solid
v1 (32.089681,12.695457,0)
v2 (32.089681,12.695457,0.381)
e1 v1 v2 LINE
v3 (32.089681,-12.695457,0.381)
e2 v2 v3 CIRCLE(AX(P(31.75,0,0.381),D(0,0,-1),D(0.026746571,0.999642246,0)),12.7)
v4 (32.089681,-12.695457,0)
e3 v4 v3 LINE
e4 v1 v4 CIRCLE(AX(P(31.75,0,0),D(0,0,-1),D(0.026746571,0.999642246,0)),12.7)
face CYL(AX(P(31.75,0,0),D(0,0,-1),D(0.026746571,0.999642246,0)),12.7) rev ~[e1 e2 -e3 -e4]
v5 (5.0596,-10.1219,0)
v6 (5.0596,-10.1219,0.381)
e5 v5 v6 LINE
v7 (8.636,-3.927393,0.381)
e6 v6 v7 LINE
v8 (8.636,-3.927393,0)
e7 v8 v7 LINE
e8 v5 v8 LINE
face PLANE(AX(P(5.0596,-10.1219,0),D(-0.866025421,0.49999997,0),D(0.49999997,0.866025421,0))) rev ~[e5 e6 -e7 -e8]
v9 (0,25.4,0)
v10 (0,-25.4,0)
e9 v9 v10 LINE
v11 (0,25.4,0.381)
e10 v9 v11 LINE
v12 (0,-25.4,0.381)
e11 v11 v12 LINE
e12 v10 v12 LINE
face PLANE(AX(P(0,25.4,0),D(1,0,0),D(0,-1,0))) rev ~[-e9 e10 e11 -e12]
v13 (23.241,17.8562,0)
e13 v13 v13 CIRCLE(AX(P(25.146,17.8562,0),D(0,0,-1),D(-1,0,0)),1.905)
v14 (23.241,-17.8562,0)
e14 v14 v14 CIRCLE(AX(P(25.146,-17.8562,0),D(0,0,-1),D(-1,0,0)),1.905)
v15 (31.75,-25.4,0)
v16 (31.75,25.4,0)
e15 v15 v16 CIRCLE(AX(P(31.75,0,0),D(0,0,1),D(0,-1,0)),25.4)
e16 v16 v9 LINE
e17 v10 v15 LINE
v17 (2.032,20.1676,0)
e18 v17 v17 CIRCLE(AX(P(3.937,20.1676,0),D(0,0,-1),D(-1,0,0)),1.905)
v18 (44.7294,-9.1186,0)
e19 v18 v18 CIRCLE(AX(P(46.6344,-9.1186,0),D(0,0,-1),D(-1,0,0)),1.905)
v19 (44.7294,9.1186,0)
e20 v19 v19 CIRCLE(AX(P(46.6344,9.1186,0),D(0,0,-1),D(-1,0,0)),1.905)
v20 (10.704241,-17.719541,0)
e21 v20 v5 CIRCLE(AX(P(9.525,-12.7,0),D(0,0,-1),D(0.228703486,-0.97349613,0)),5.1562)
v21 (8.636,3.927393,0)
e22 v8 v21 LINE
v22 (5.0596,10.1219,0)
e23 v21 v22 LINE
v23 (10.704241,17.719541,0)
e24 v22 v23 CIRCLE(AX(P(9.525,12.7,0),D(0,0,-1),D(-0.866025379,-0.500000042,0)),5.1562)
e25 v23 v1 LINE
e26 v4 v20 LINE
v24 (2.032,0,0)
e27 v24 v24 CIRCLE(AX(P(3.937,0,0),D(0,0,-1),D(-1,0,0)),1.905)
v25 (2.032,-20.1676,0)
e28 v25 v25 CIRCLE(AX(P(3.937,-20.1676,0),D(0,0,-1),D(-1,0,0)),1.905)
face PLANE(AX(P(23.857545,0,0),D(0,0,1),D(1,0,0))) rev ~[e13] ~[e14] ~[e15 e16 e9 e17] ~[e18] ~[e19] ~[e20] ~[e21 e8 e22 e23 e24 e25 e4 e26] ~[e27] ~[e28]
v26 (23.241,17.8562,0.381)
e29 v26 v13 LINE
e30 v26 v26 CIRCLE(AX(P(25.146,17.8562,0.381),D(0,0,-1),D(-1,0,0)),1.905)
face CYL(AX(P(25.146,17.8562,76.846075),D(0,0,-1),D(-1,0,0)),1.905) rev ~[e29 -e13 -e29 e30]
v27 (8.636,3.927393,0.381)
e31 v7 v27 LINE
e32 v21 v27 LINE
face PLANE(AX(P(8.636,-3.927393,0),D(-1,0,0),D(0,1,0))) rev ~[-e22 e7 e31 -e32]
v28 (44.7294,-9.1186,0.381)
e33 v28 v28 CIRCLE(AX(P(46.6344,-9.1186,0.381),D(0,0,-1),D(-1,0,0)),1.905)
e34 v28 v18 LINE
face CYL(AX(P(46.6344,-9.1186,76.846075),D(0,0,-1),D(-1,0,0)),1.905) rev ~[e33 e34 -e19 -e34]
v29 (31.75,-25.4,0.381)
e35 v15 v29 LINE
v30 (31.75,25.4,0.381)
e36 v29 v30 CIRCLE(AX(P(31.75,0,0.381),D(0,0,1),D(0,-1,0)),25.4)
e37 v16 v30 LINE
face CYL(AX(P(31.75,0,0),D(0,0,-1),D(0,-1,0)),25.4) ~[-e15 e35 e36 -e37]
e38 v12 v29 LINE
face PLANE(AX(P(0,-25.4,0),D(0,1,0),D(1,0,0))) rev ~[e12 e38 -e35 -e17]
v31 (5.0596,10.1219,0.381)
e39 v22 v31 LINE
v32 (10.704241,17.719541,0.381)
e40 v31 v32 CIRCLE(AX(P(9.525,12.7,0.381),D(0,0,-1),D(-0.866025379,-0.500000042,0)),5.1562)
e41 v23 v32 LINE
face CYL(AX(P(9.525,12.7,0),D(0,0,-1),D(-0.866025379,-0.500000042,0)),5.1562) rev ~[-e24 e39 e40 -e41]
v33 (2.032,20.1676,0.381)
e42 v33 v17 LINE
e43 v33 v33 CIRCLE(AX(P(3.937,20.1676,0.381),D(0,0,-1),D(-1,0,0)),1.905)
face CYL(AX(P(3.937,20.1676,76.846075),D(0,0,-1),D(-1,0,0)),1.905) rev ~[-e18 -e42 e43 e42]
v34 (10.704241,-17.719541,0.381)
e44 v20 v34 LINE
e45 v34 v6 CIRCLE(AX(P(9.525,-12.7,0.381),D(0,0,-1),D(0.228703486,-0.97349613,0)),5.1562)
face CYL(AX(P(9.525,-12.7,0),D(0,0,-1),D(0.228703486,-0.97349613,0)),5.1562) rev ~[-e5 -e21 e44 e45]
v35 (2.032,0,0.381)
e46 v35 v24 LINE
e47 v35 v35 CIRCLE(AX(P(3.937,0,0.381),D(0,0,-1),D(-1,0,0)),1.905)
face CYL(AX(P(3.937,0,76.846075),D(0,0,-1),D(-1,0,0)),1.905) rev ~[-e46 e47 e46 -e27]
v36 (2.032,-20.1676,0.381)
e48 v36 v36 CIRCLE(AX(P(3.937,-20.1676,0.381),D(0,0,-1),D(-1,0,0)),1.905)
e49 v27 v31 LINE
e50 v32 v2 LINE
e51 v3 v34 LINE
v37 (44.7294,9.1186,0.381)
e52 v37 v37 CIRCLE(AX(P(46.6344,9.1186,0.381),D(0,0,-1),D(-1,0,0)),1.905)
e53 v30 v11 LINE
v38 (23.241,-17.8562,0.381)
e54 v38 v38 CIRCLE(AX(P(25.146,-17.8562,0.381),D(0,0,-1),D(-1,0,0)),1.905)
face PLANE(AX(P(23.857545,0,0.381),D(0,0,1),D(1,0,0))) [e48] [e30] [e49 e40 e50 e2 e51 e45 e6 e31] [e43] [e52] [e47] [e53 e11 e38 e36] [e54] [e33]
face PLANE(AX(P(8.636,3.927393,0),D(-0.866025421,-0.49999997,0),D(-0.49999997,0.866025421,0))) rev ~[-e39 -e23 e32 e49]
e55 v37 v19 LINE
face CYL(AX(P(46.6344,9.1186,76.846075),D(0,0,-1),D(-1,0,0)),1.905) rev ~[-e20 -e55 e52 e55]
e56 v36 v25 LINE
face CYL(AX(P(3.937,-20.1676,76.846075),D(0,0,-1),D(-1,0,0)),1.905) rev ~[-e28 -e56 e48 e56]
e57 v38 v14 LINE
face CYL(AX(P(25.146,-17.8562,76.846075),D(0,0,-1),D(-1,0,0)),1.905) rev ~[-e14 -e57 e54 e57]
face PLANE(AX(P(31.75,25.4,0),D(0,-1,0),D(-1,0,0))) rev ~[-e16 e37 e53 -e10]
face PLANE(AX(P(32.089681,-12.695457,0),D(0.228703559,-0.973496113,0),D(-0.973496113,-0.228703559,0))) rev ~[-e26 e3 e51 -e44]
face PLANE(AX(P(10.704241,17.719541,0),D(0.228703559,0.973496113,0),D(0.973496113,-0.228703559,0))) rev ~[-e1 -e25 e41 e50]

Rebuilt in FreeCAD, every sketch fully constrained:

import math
import FreeCAD as App
import Part
import Sketcher
from FreeCAD import Vector
Q = App.Units.Quantity

doc = App.newDocument("Part")
body = doc.addObject("PartDesign::Body", "Body")

# Sketch on XY plane
sketch1 = doc.addObject("Sketcher::SketchObject", "Sketch")
body.addObject(sketch1)
sketch1.AttachmentSupport = (doc.XY_Plane, [""])
sketch1.MapMode = "FlatFace"
sketch1.addGeometry([
    Part.LineSegment(Vector(31.75, 25.4, 0), Vector(0, 25.4, 0)),  # 0
    Part.LineSegment(Vector(0, 25.4, 0), Vector(0, -25.4, 0)),  # 1
    Part.LineSegment(Vector(0, -25.4, 0), Vector(31.75, -25.4, 0)),  # 2
    Part.ArcOfCircle(Part.Circle(Vector(31.75, 0, 0), Vector(0, 0, 1), 25.4), math.radians(-90), math.radians(90)),  # 3
    Part.LineSegment(Vector(10.704241, 17.719541, 0), Vector(32.089681, 12.695457, 0)),  # 4
    Part.ArcOfCircle(Part.Circle(Vector(31.75, 0, 0), Vector(0, 0, 1), 12.7), math.radians(-88.467352), math.radians(88.467352)),  # 5
    Part.LineSegment(Vector(32.089681, -12.695457, 0), Vector(10.704241, -17.719541, 0)),  # 6
    Part.ArcOfCircle(Part.Circle(Vector(9.525, -12.7, 0), Vector(0, 0, 1), 5.1562), math.radians(149.999997), math.radians(283.220753)),  # 7
    Part.LineSegment(Vector(5.0596, -10.1219, 0), Vector(8.636, -3.927393, 0)),  # 8
    Part.LineSegment(Vector(8.636, -3.927393, 0), Vector(8.636, 3.927393, 0)),  # 9
    Part.LineSegment(Vector(8.636, 3.927393, 0), Vector(5.0596, 10.1219, 0)),  # 10
    Part.ArcOfCircle(Part.Circle(Vector(9.525, 12.7, 0), Vector(0, 0, 1), 5.1562), math.radians(76.779247), math.radians(210.000003)),  # 11
], False)
sketch1.addConstraint([
    Sketcher.Constraint("Coincident", 0, 2, 1, 1),
    Sketcher.Constraint("Coincident", 1, 2, 2, 1),
    Sketcher.Constraint("Tangent", 2, 2, 3, 1),
    Sketcher.Constraint("Tangent", 3, 2, 0, 1),
    Sketcher.Constraint("Coincident", 4, 2, 5, 2),
    Sketcher.Constraint("Coincident", 5, 1, 6, 1),
    Sketcher.Constraint("Tangent", 6, 2, 7, 2),
    Sketcher.Constraint("Tangent", 7, 1, 8, 1),
    Sketcher.Constraint("Coincident", 8, 2, 9, 1),
    Sketcher.Constraint("Coincident", 9, 2, 10, 1),
    Sketcher.Constraint("Tangent", 10, 2, 11, 2),
    Sketcher.Constraint("Tangent", 11, 1, 4, 1),
    Sketcher.Constraint("Horizontal", 0),
    Sketcher.Constraint("Vertical", 1),
    Sketcher.Constraint("Horizontal", 2),
    Sketcher.Constraint("Vertical", 9),
    Sketcher.Constraint("Coincident", 5, 3, 3, 3),
    Sketcher.Constraint("Equal", 7, 11),
    Sketcher.Constraint("Symmetric", 0, 2, 1, 2, -1, 1),
    Sketcher.Constraint("Symmetric", 7, 3, 11, 3, -1),
    Sketcher.Constraint("Vertical", 4, 2, 5, 1),
    Sketcher.Constraint("Vertical", 7, 1, 10, 2),
    Sketcher.Constraint("Radius", 3, Q("1 in")),
    Sketcher.Constraint("Radius", 5, Q("0.5 in")),
    Sketcher.Constraint("Angle", 8, Q("60.000002 deg")),
    Sketcher.Constraint("Radius", 7, Q("0.203 in")),
    Sketcher.Constraint("DistanceY", 7, 3, 11, 3, Q("1 in")),
    Sketcher.Constraint("DistanceX", 0, 2, 0, 1, Q("1.25 in")),
    Sketcher.Constraint("DistanceX", -1, 1, 8, 2, Q("0.34 in")),
    Sketcher.Constraint("DistanceX", -1, 1, 7, 3, Q("0.375 in")),
    Sketcher.Constraint("Distance", 4, 21.967669),
])
pad1 = doc.addObject("PartDesign::Pad", "Pad")
body.addObject(pad1)
pad1.Profile = sketch1
pad1.Length = Q("0.015 in")

# Sketch on XY plane
sketch2 = doc.addObject("Sketcher::SketchObject", "Sketch001")
body.addObject(sketch2)
sketch2.AttachmentSupport = (doc.XY_Plane, [""])
sketch2.MapMode = "FlatFace"
sketch2.AttachmentOffset = App.Placement(Vector(0, 0, 0.015 * 25.4), App.Rotation())
sketch2.addGeometry([
    Part.Circle(Vector(3.937, 20.1676, 0), Vector(0, 0, 1), 1.905),  # 0
    Part.Circle(Vector(3.937, 0, 0), Vector(0, 0, 1), 1.905),  # 1
    Part.Circle(Vector(3.937, -20.1676, 0), Vector(0, 0, 1), 1.905),  # 2
    Part.Circle(Vector(25.146, -17.8562, 0), Vector(0, 0, 1), 1.905),  # 3
    Part.Circle(Vector(46.6344, -9.1186, 0), Vector(0, 0, 1), 1.905),  # 4
    Part.Circle(Vector(46.6344, 9.1186, 0), Vector(0, 0, 1), 1.905),  # 5
    Part.Circle(Vector(25.146, 17.8562, 0), Vector(0, 0, 1), 1.905),  # 6
], False)
sketch2.addConstraint([
    Sketcher.Constraint("Equal", 0, 1),
    Sketcher.Constraint("Equal", 1, 2),
    Sketcher.Constraint("Equal", 2, 3),
    Sketcher.Constraint("Equal", 3, 4),
    Sketcher.Constraint("Equal", 4, 5),
    Sketcher.Constraint("Equal", 5, 6),
    Sketcher.Constraint("Symmetric", 0, 3, 2, 3, -1),
    Sketcher.Constraint("Symmetric", 4, 3, 5, 3, -1),
    Sketcher.Constraint("Symmetric", 3, 3, 6, 3, -1),
    Sketcher.Constraint("PointOnObject", 1, 3, -1),
    Sketcher.Constraint("Vertical", 0, 3, 1, 3),
    Sketcher.Constraint("Diameter", 0, Q("0.15 in")),
    Sketcher.Constraint("DistanceX", -1, 1, 3, 3, Q("0.99 in")),
    Sketcher.Constraint("DistanceX", -1, 1, 0, 3, Q("0.155 in")),
    Sketcher.Constraint("DistanceY", -1, 1, 0, 3, Q("0.794 in")),
    Sketcher.Constraint("DistanceY", 3, 3, -1, 1, Q("0.703 in")),
    Sketcher.Constraint("DistanceX", -1, 1, 4, 3, Q("1.836 in")),
    Sketcher.Constraint("DistanceY", 4, 3, -1, 1, Q("0.359 in")),
])
doc.recompute()
hole = doc.addObject("PartDesign::Hole", "Hole")
body.addObject(hole)
hole.Profile = sketch2
hole.ThreadType = "None"
hole.Diameter = Q("0.15 in")
hole.DepthType = "ThroughAll"

doc.recompute()
